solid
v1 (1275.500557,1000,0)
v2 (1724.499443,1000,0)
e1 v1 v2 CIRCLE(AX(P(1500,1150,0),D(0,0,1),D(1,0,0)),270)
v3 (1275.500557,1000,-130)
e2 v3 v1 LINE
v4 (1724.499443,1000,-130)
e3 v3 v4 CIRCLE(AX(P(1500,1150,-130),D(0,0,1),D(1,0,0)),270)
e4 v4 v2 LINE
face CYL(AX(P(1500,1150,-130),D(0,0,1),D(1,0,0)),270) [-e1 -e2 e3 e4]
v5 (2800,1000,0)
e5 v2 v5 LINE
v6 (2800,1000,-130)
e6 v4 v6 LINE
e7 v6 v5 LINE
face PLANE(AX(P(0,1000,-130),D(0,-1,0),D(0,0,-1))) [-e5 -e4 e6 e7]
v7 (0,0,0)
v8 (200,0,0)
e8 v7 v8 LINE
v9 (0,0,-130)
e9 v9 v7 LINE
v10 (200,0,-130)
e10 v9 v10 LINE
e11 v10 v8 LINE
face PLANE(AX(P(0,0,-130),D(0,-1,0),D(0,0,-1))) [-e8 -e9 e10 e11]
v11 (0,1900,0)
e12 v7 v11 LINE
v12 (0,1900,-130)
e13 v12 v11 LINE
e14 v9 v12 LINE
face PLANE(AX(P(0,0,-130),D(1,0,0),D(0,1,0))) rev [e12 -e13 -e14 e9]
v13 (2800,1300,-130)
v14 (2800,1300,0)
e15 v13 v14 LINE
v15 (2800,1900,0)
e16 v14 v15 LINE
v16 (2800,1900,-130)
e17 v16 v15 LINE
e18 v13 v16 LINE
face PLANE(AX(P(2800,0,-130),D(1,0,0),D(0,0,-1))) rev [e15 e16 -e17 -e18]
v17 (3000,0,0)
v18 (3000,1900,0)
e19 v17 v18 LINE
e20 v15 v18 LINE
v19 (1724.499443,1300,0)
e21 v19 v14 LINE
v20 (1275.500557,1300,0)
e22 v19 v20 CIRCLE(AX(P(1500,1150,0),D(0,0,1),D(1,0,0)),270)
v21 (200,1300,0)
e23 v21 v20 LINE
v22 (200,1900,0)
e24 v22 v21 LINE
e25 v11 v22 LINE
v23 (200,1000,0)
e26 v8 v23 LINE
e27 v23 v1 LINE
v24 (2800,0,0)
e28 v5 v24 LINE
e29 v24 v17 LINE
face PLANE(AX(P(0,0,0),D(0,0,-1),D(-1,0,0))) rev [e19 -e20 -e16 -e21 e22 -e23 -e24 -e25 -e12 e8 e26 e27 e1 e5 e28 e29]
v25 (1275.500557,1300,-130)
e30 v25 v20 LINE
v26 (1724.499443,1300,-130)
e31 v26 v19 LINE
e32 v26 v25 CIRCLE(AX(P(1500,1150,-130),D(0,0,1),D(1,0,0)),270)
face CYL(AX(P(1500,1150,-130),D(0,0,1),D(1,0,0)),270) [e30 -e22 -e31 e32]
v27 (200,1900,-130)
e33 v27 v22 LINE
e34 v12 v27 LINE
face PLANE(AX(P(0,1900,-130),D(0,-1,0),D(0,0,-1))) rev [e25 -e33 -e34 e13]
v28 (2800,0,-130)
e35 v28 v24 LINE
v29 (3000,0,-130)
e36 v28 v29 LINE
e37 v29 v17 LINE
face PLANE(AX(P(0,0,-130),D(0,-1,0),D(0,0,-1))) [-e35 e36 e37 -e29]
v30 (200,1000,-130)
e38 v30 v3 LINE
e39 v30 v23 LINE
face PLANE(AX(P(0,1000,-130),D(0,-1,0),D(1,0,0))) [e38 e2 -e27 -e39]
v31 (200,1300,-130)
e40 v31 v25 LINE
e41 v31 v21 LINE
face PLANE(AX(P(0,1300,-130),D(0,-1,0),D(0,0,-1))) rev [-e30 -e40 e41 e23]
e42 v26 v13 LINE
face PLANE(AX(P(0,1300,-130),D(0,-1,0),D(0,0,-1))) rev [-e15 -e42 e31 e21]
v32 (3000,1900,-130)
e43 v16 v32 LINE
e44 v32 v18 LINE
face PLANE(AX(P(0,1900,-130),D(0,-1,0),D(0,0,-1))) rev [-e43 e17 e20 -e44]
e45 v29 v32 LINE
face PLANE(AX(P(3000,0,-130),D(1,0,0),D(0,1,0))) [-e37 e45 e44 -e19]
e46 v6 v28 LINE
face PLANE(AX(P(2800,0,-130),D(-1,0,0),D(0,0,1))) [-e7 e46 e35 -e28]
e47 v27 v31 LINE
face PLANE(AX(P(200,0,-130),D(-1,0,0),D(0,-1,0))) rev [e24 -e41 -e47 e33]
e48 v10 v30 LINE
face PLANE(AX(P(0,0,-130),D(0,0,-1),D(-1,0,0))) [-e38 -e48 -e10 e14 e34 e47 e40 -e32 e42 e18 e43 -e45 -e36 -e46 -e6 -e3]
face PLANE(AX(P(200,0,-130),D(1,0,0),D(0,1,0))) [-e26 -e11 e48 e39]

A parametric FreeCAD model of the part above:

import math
import FreeCAD as App
import Part
import Sketcher
from FreeCAD import Vector
Q = App.Units.Quantity


def add_polygon(sketch, points):
    """Adds a closed chain of lines whose ends are joined by coincident constraints."""
    first, n = sketch.GeometryCount, len(points)
    for a, b in zip(points, points[1:] + points[:1]):
        sketch.addGeometry(Part.LineSegment(App.Vector(*a, 0), App.Vector(*b, 0)), False)
    for i in range(n):
        sketch.addConstraint(Sketcher.Constraint("Coincident", first + i, 2, first + (i + 1) % n, 1))

doc = App.newDocument("Part")
body = doc.addObject("PartDesign::Body", "Body")

sketch1 = body.newObject("Sketcher::SketchObject", "Sketch")
sketch1.AttachmentSupport = (doc.getObject("XY_Plane"), [""])
sketch1.MapMode = "FlatFace"
add_polygon(sketch1, [(0, 1900), (0, 0), (3000, 0), (3000, 1900)])
sketch1.addConstraint([
    Sketcher.Constraint("Vertical", 0),
    Sketcher.Constraint("Horizontal", 1),
    Sketcher.Constraint("Vertical", 2),
    Sketcher.Constraint("Horizontal", 3),
    Sketcher.Constraint("Coincident", 0, 2, -1, 1),
    Sketcher.Constraint("DistanceX", 1, 1, 1, 2, Q("3000 mm")),
    Sketcher.Constraint("DistanceY", 0, 2, 0, 1, Q("1900 mm")),
])
pad1 = body.newObject("PartDesign::Pad", "Pad")
pad1.Profile = sketch1
pad1.Length = 130
pad1.Reversed = True

sketch2 = body.newObject("Sketcher::SketchObject", "Sketch001")
sketch2.AttachmentSupport = (doc.getObject("XY_Plane"), [""])
sketch2.MapMode = "FlatFace"
sketch2.addGeometry([
    Part.LineSegment(Vector(200, 1300, 0), Vector(1275.500557, 1300, 0)),
    Part.ArcOfCircle(Part.Circle(Vector(1500, 1150, 0), Vector(0, 0, 1), 270), math.radians(33.748989), math.radians(146.251011)),
    Part.LineSegment(Vector(1724.499443, 1300, 0), Vector(2800, 1300, 0)),
    Part.LineSegment(Vector(2800, 1300, 0), Vector(2800, 1900, 0)),
    Part.LineSegment(Vector(2800, 1900, 0), Vector(200, 1900, 0)),
    Part.LineSegment(Vector(200, 1900, 0), Vector(200, 1300, 0)),
    Part.LineSegment(Vector(200, 1000, 0), Vector(200, 0, 0)),
    Part.LineSegment(Vector(200, 0, 0), Vector(2800, 0, 0)),
    Part.LineSegment(Vector(2800, 0, 0), Vector(2800, 1000, 0)),
    Part.LineSegment(Vector(2800, 1000, 0), Vector(1724.499443, 1000, 0)),
    Part.ArcOfCircle(Part.Circle(Vector(1500, 1150, 0), Vector(0, 0, 1), 270), math.radians(-146.251011), math.radians(-33.748989)),
    Part.LineSegment(Vector(1275.500557, 1000, 0), Vector(200, 1000, 0)),
], False)
sketch2.addConstraint([
    Sketcher.Constraint("Coincident", 0, 2, 1, 2),
    Sketcher.Constraint("Coincident", 1, 1, 2, 1),
    Sketcher.Constraint("Coincident", 2, 2, 3, 1),
    Sketcher.Constraint("Coincident", 3, 2, 4, 1),
    Sketcher.Constraint("Coincident", 4, 2, 5, 1),
    Sketcher.Constraint("Coincident", 5, 2, 0, 1),
    Sketcher.Constraint("Coincident", 6, 2, 7, 1),
    Sketcher.Constraint("Coincident", 7, 2, 8, 1),
    Sketcher.Constraint("Coincident", 8, 2, 9, 1),
    Sketcher.Constraint("Coincident", 9, 2, 10, 2),
    Sketcher.Constraint("Coincident", 10, 1, 11, 1),
    Sketcher.Constraint("Coincident", 11, 2, 6, 1),
    Sketcher.Constraint("Horizontal", 0),
    Sketcher.Constraint("Horizontal", 2),
    Sketcher.Constraint("Vertical", 3),
    Sketcher.Constraint("Horizontal", 4),
    Sketcher.Constraint("Vertical", 5),
    Sketcher.Constraint("Vertical", 6),
    Sketcher.Constraint("Horizontal", 7),
    Sketcher.Constraint("Vertical", 8),
    Sketcher.Constraint("Horizontal", 9),
    Sketcher.Constraint("Horizontal", 11),
    Sketcher.Constraint("Coincident", 10, 3, 1, 3),
    Sketcher.Constraint("Equal", 1, 10),
    Sketcher.Constraint("PointOnObject", 6, 2, -1),
    Sketcher.Constraint("Horizontal", 0, 2, 1, 1),
    Sketcher.Constraint("Horizontal", 9, 2, 10, 1),
    Sketcher.Constraint("Vertical", 5, 2, 6, 2),
    Sketcher.Constraint("Vertical", 3, 2, 7, 2),
    Sketcher.Constraint("Vertical", 1, 1, 9, 2),
    Sketcher.Constraint("Equal", 0, 2),
    Sketcher.Constraint("Radius", 1, Q("270 mm")),
    Sketcher.Constraint("DistanceX", 4, 2, 4, 1, Q("2600 mm")),
    Sketcher.Constraint("DistanceY", 3, 1, 3, 2, Q("600 mm")),
    Sketcher.Constraint("DistanceY", 6, 2, 6, 1, Q("1000 mm")),
    Sketcher.Constraint("DistanceX", -1, 1, 1, 3, Q("1500 mm")),
    Sketcher.Constraint("DistanceY", -1, 1, 1, 3, Q("1150 mm")),
])
pocket1 = body.newObject("PartDesign::Pocket", "Pocket")
pocket1.Profile = sketch2
pocket1.Length = 130

doc.recompute()
